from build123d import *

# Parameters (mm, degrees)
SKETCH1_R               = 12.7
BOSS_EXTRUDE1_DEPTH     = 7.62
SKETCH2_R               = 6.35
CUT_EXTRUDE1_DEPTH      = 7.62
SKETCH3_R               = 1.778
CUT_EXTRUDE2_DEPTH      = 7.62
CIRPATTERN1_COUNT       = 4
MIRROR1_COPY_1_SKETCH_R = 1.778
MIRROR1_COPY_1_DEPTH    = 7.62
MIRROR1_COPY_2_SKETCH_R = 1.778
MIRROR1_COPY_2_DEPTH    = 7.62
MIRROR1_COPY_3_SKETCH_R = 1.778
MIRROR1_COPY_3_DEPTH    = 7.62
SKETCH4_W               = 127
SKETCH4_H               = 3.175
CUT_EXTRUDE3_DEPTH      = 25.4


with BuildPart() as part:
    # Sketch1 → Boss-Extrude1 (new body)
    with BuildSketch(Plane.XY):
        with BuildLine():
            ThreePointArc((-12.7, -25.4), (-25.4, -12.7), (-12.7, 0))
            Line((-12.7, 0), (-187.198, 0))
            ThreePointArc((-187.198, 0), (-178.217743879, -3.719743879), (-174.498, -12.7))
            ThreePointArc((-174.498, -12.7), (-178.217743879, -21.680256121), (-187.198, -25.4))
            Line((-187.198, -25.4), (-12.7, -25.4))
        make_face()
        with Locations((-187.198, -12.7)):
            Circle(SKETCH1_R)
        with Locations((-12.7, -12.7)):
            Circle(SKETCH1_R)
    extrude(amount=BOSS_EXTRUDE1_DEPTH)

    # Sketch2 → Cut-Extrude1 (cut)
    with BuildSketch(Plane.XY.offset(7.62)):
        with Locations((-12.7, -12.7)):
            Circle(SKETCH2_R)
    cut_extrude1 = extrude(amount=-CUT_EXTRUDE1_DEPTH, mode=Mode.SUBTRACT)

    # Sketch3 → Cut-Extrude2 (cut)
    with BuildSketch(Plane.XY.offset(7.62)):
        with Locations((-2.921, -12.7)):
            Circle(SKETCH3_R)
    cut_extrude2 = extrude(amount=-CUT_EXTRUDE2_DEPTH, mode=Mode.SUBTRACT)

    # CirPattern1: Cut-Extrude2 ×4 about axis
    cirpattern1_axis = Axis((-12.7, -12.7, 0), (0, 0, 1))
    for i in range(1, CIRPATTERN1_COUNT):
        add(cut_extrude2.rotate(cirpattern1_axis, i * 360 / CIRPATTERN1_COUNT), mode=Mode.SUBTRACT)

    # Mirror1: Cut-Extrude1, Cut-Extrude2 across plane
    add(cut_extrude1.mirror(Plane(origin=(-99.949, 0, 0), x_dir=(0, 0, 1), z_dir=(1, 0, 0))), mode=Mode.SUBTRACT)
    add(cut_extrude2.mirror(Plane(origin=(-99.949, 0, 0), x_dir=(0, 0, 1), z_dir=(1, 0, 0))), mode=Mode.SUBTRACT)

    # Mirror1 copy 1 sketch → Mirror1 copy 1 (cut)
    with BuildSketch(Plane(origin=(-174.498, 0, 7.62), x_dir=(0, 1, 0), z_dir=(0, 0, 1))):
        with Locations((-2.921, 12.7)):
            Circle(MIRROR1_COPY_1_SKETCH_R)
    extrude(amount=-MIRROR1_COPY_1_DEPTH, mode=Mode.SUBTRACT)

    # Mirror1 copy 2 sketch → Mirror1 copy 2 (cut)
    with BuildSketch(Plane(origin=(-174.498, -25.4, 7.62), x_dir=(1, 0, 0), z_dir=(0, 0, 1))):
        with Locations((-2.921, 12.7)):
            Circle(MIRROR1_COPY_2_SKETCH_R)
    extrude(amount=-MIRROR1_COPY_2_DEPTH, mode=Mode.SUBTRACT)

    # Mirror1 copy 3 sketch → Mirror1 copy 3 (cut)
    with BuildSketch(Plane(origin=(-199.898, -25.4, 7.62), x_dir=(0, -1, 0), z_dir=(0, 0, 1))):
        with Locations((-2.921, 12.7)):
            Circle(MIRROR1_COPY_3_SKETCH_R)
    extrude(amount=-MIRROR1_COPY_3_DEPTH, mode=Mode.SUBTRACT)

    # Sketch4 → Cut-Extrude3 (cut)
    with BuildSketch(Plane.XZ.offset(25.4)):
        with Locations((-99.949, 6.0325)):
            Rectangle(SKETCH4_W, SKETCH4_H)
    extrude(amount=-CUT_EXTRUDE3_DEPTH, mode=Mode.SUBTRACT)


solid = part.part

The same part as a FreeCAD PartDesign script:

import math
import FreeCAD as App
import Part
import Sketcher
from FreeCAD import Vector
Q = App.Units.Quantity

doc = App.newDocument("Part")
params = doc.addObject("Spreadsheet::Sheet", "Params")
for row, (alias, value) in enumerate([
    ("sketch1_radius", "0.5 in"),
    ("sketch1_width", "6.87 in"),
    ("pad1_length", "0.3 in"),
    ("sketch2_diameter", "0.5 in"),
    ("pocket1_length", "0.3 in"),
    ("sketch3_diameter", "0.14 in"),
    ("pocket2_length", "0.3 in"),
    ("sketch4_diameter", "0.14 in"),
    ("pocket3_length", "0.3 in"),
    ("sketch5_diameter", "0.14 in"),
    ("pocket4_length", "0.3 in"),
    ("sketch6_diameter", "0.14 in"),
    ("pocket5_length", "0.3 in"),
    ("sketch7_width", "5 in"),
    ("sketch7_height", "0.125 in"),
    ("pocket6_length", "1 in"),
], start=1):
    params.set(f"A{row}", alias)
    params.set(f"B{row}", "=" + value)
    params.setAlias(f"B{row}", alias)

body = doc.addObject("PartDesign::Body", "Body")

# Sketch on XY plane
sketch1 = doc.addObject("Sketcher::SketchObject", "Sketch")
body.addObject(sketch1)
sketch1.AttachmentSupport = (doc.XY_Plane, [""])
sketch1.MapMode = "FlatFace"
sketch1.addGeometry(Part.LineSegment(Vector(-13, 0, 0), Vector(-187, 0, 0)), False)
sketch1.addGeometry(Part.ArcOfCircle(Part.Circle(Vector(-187, -13, 0), Vector(0, 0, 1), 13), math.radians(90), math.radians(270)), False)
sketch1.addGeometry(Part.LineSegment(Vector(-187, -25, 0), Vector(-13, -25, 0)), False)
sketch1.addGeometry(Part.ArcOfCircle(Part.Circle(Vector(-13, -13, 0), Vector(0, 0, 1), 13), math.radians(-90), math.radians(90)), False)
sketch1.addConstraint(Sketcher.Constraint("Tangent", 0, 2, 1, 1))
sketch1.addConstraint(Sketcher.Constraint("Tangent", 1, 2, 2, 1))
sketch1.addConstraint(Sketcher.Constraint("Tangent", 2, 2, 3, 1))
sketch1.addConstraint(Sketcher.Constraint("Tangent", 3, 2, 0, 1))
sketch1.addConstraint(Sketcher.Constraint("Horizontal", 0))
sketch1.addConstraint(Sketcher.Constraint("Horizontal", 2))
sketch1.addConstraint(Sketcher.Constraint("PointOnObject", 0, 2, -1))
sketch1.addConstraint(Sketcher.Constraint("Radius", 1, Q("0.5 in")))
sketch1.addConstraint(Sketcher.Constraint("DistanceX", 0, 2, 0, 1, Q("6.87 in")))
sketch1.addConstraint(Sketcher.Constraint("DistanceX", 3, 3, -1, 1, Q("0.5 in")))
sketch1.setExpression("Constraints[7]", "Params.sketch1_radius")
sketch1.setExpression("Constraints[8]", "Params.sketch1_width")
pad1 = doc.addObject("PartDesign::Pad", "Pad")
body.addObject(pad1)
pad1.Profile = sketch1
pad1.setExpression("Length", "Params.pad1_length")

# Sketch on XY plane
sketch2 = doc.addObject("Sketcher::SketchObject", "Sketch001")
body.addObject(sketch2)
sketch2.AttachmentSupport = (doc.XY_Plane, [""])
sketch2.MapMode = "FlatFace"
sketch2.AttachmentOffset = App.Placement(Vector(0, 0, 0.3 * 25.4), App.Rotation())
sketch2.addGeometry(Part.Circle(Vector(-13, -13, 0), Vector(0, 0, 1), 6), False)
sketch2.addConstraint(Sketcher.Constraint("Diameter", 0, Q("0.5 in")))
sketch2.addConstraint(Sketcher.Constraint("DistanceX", 0, 3, -1, 1, Q("0.5 in")))
sketch2.addConstraint(Sketcher.Constraint("DistanceY", 0, 3, -1, 1, Q("0.5 in")))
sketch2.setExpression("Constraints[0]", "Params.sketch2_diameter")
pocket1 = doc.addObject("PartDesign::Pocket", "Pocket")
body.addObject(pocket1)
pocket1.Profile = sketch2
pocket1.setExpression("Length", "Params.pocket1_length")

# Sketch on XY plane
sketch3 = doc.addObject("Sketcher::SketchObject", "Sketch002")
body.addObject(sketch3)
sketch3.AttachmentSupport = (doc.XY_Plane, [""])
sketch3.MapMode = "FlatFace"
sketch3.AttachmentOffset = App.Placement(Vector(0, 0, 0.3 * 25.4), App.Rotation())
sketch3.addGeometry(Part.Circle(Vector(-2.9, -12.7, 0), Vector(0, 0, 1), 1.8), False)
sketch3.addConstraint(Sketcher.Constraint("Diameter", 0, Q("0.14 in")))
sketch3.addConstraint(Sketcher.Constraint("DistanceY", 0, 3, -1, 1, Q("0.5 in")))
sketch3.addConstraint(Sketcher.Constraint("DistanceX", 0, 3, -1, 1, Q("0.115 in")))
sketch3.setExpression("Constraints[0]", "Params.sketch3_diameter")
pocket2 = doc.addObject("PartDesign::Pocket", "Pocket001")
body.addObject(pocket2)
pocket2.Profile = sketch3
pocket2.setExpression("Length", "Params.pocket2_length")
doc.recompute()

datumline = doc.addObject("PartDesign::Line", "DatumLine")
body.addObject(datumline)
datumline.Placement = App.Placement(Vector(-12.7, -12.7, 0), App.Rotation(Vector(0, 0, 1), Vector(0, 0, 1)))
polarpattern = doc.addObject("PartDesign::PolarPattern", "PolarPattern")
body.addObject(polarpattern)
polarpattern.Originals = [pocket2]
polarpattern.Axis = (datumline, [""])
polarpattern.Angle = 360
polarpattern.Occurrences = 4
body.Tip = polarpattern
doc.recompute()

datumplane = doc.addObject("PartDesign::Plane", "DatumPlane")
body.addObject(datumplane)
datumplane.AttachmentSupport = (doc.YZ_Plane, [""])
datumplane.MapMode = "FlatFace"
datumplane.AttachmentOffset = App.Placement(Vector(0, 0, -3.935 * 25.4), App.Rotation())
mirrored = doc.addObject("PartDesign::Mirrored", "Mirrored")
body.addObject(mirrored)
mirrored.Originals = [pocket1, pocket2]
mirrored.MirrorPlane = (datumplane, [""])
body.Tip = mirrored

# Sketch on XY plane
sketch4 = doc.addObject("Sketcher::SketchObject", "Sketch003")
body.addObject(sketch4)
sketch4.AttachmentSupport = (doc.XY_Plane, [""])
sketch4.MapMode = "FlatFace"
sketch4.AttachmentOffset = App.Placement(Vector(0, 0, 0.3 * 25.4), App.Rotation())
sketch4.addGeometry(Part.Circle(Vector(-187.2, -2.9, 0), Vector(0, 0, 1), 1.8), False)
sketch4.addConstraint(Sketcher.Constraint("Diameter", 0, Q("0.14 in")))
sketch4.addConstraint(Sketcher.Constraint("DistanceX", 0, 3, -1, 1, Q("7.37 in")))
sketch4.addConstraint(Sketcher.Constraint("DistanceY", 0, 3, -1, 1, Q("0.115 in")))
sketch4.setExpression("Constraints[0]", "Params.sketch4_diameter")
pocket3 = doc.addObject("PartDesign::Pocket", "Pocket002")
body.addObject(pocket3)
pocket3.Profile = sketch4
pocket3.setExpression("Length", "Params.pocket3_length")

# Sketch on XY plane
sketch5 = doc.addObject("Sketcher::SketchObject", "Sketch004")
body.addObject(sketch5)
sketch5.AttachmentSupport = (doc.XY_Plane, [""])
sketch5.MapMode = "FlatFace"
sketch5.AttachmentOffset = App.Placement(Vector(0, 0, 0.3 * 25.4), App.Rotation())
sketch5.addGeometry(Part.Circle(Vector(-177.4, -12.7, 0), Vector(0, 0, 1), 1.8), False)
sketch5.addConstraint(Sketcher.Constraint("Diameter", 0, Q("0.14 in")))
sketch5.addConstraint(Sketcher.Constraint("DistanceY", 0, 3, -1, 1, Q("0.5 in")))
sketch5.addConstraint(Sketcher.Constraint("DistanceX", 0, 3, -1, 1, Q("6.985 in")))
sketch5.setExpression("Constraints[0]", "Params.sketch5_diameter")
pocket4 = doc.addObject("PartDesign::Pocket", "Pocket003")
body.addObject(pocket4)
pocket4.Profile = sketch5
pocket4.setExpression("Length", "Params.pocket4_length")

# Sketch on XY plane
sketch6 = doc.addObject("Sketcher::SketchObject", "Sketch005")
body.addObject(sketch6)
sketch6.AttachmentSupport = (doc.XY_Plane, [""])
sketch6.MapMode = "FlatFace"
sketch6.AttachmentOffset = App.Placement(Vector(0, 0, 0.3 * 25.4), App.Rotation())
sketch6.addGeometry(Part.Circle(Vector(-187.2, -22.5, 0), Vector(0, 0, 1), 1.8), False)
sketch6.addConstraint(Sketcher.Constraint("Diameter", 0, Q("0.14 in")))
sketch6.addConstraint(Sketcher.Constraint("DistanceX", 0, 3, -1, 1, Q("7.37 in")))
sketch6.addConstraint(Sketcher.Constraint("DistanceY", 0, 3, -1, 1, Q("0.885 in")))
sketch6.setExpression("Constraints[0]", "Params.sketch6_diameter")
pocket5 = doc.addObject("PartDesign::Pocket", "Pocket004")
body.addObject(pocket5)
pocket5.Profile = sketch6
pocket5.setExpression("Length", "Params.pocket5_length")

# Sketch on XZ plane
sketch7 = doc.addObject("Sketcher::SketchObject", "Sketch006")
body.addObject(sketch7)
sketch7.AttachmentSupport = (doc.XZ_Plane, [""])
sketch7.MapMode = "FlatFace"
sketch7.AttachmentOffset = App.Placement(Vector(0, 0, 1 * 25.4), App.Rotation())
sketch7.addGeometry(Part.LineSegment(Vector(-163.4, 7.6, 0), Vector(-163.4, 4.4, 0)), False)
sketch7.addGeometry(Part.LineSegment(Vector(-163.4, 4.4, 0), Vector(-36.4, 4.4, 0)), False)
sketch7.addGeometry(Part.LineSegment(Vector(-36.4, 4.4, 0), Vector(-36.4, 7.6, 0)), False)
sketch7.addGeometry(Part.LineSegment(Vector(-36.4, 7.6, 0), Vector(-163.4, 7.6, 0)), False)
sketch7.addConstraint(Sketcher.Constraint("Coincident", 0, 2, 1, 1))
sketch7.addConstraint(Sketcher.Constraint("Coincident", 1, 2, 2, 1))
sketch7.addConstraint(Sketcher.Constraint("Coincident", 2, 2, 3, 1))
sketch7.addConstraint(Sketcher.Constraint("Coincident", 3, 2, 0, 1))
sketch7.addConstraint(Sketcher.Constraint("Vertical", 0))
sketch7.addConstraint(Sketcher.Constraint("Horizontal", 1))
sketch7.addConstraint(Sketcher.Constraint("Vertical", 2))
sketch7.addConstraint(Sketcher.Constraint("Horizontal", 3))
sketch7.addConstraint(Sketcher.Constraint("DistanceX", 1, 1, 1, 2, Q("5 in")))
sketch7.addConstraint(Sketcher.Constraint("DistanceY", -1, 1, 2, 2, Q("0.3 in")))
sketch7.addConstraint(Sketcher.Constraint("DistanceY", 0, 2, 0, 1, Q("0.125 in")))
sketch7.addConstraint(Sketcher.Constraint("DistanceX", 0, 2, -1, 1, Q("6.435 in")))
sketch7.setExpression("Constraints[8]", "Params.sketch7_width")
sketch7.setExpression("Constraints[10]", "Params.sketch7_height")
pocket6 = doc.addObject("PartDesign::Pocket", "Pocket005")
body.addObject(pocket6)
pocket6.Profile = sketch7
pocket6.setExpression("Length", "Params.pocket6_length")

doc.recompute()
